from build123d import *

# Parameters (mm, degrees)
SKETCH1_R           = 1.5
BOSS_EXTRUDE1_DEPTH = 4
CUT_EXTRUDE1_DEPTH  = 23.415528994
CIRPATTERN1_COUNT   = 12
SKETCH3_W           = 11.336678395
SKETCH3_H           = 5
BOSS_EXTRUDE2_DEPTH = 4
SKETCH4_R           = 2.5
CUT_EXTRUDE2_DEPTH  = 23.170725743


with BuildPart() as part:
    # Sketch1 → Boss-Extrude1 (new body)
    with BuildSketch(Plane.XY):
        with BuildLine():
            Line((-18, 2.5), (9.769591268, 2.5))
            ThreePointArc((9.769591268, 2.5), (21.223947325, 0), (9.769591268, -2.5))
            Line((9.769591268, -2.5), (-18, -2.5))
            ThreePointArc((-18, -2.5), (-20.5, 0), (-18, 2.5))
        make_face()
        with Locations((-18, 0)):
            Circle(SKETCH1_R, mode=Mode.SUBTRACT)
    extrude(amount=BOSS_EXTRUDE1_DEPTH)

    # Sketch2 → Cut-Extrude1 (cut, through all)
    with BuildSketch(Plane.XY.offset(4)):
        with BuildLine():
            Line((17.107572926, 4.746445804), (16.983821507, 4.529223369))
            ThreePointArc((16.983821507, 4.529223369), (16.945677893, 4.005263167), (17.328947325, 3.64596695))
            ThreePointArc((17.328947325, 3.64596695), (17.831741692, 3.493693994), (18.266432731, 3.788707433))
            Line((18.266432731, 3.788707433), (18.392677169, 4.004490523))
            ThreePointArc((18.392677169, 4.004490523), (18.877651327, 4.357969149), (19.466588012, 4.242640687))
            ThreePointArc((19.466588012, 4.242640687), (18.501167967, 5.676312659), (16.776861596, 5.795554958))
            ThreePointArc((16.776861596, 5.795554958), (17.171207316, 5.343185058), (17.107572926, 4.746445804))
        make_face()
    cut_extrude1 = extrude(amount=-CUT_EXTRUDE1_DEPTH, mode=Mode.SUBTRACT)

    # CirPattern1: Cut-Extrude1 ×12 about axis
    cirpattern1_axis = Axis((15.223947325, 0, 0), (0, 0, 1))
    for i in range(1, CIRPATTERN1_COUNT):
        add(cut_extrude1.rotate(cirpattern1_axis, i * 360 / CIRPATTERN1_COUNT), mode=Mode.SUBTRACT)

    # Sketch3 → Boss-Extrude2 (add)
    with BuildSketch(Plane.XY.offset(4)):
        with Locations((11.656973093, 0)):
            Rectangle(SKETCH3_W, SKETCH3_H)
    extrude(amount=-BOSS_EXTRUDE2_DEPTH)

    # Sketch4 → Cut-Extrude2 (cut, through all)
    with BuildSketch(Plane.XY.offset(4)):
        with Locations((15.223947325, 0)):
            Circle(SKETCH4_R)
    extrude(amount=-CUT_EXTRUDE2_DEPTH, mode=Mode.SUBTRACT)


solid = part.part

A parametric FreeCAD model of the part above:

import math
import FreeCAD as App
import Part
import Sketcher

V = App.Vector

doc = App.newDocument("Part")
body = doc.addObject("PartDesign::Body", "Body")
body.AllowCompound = True

# Sketch on XY plane
sketch1 = body.newObject("Sketcher::SketchObject", "Sketch")
sketch1.AttachmentSupport = (doc.getObject("XY_Plane"), [""])
sketch1.MapMode = "FlatFace"
sketch1.addGeometry([
    Part.LineSegment(V(9.8, 2.5, 0), V(-18, 2.5, 0)),  # 0
    Part.ArcOfCircle(Part.Circle(V(-18, 0, 0), V(0, 0, 1), 2.5), math.radians(90), math.radians(270)),  # 1
    Part.LineSegment(V(-18, -2.5, 0), V(9.8, -2.5, 0)),  # 2
    Part.ArcOfCircle(Part.Circle(V(15.2, 0, 0), V(0, 0, 1), 6), math.radians(-155), math.radians(155)),  # 3
    Part.Circle(V(-18, 0, 0), V(0, 0, 1), 1.5),  # 4
], False)
sketch1.addConstraint([
    Sketcher.Constraint("Tangent", 0, 2, 1, 1),
    Sketcher.Constraint("Tangent", 1, 2, 2, 1),
    Sketcher.Constraint("Coincident", 2, 2, 3, 1),
    Sketcher.Constraint("Coincident", 3, 2, 0, 1),
    Sketcher.Constraint("Horizontal", 0),
    Sketcher.Constraint("Horizontal", 2),
    Sketcher.Constraint("Coincident", 4, 3, 1, 3),
    Sketcher.Constraint("Symmetric", 2, 2, 3, 2, -1),
    Sketcher.Constraint("Diameter", 4, 3.0),
    Sketcher.Constraint("Radius", 3, 6.0),
    Sketcher.Constraint("Radius", 1, 2.5),
    Sketcher.Constraint("DistanceX", 1, 3, -1, 1, 18.0),
    Sketcher.Constraint("DistanceX", 0, 2, 0, 1, 27.769591),
])
pad1 = body.newObject("PartDesign::Pad", "Pad")
pad1.Profile = sketch1
pad1.Length = 4

# Sketch on XY plane
sketch2 = body.newObject("Sketcher::SketchObject", "Sketch001")
sketch2.AttachmentSupport = (doc.getObject("XY_Plane"), [""])
sketch2.MapMode = "FlatFace"
sketch2.AttachmentOffset = App.Placement(V(0, 0, 4), App.Rotation())
sketch2.addGeometry([
    Part.LineSegment(V(17.11, 4.75, 0), V(16.98, 4.53, 0)),  # 0
    Part.ArcOfCircle(Part.Circle(V(17.51, 4.23, 0), V(0, 0, 1), 0.61), math.radians(150), math.radians(252)),  # 1
    Part.ArcOfCircle(Part.Circle(V(17.74, 4.1, 0), V(0, 0, 1), 0.61), math.radians(-132), math.radians(-30)),  # 2
    Part.LineSegment(V(18.27, 3.79, 0), V(18.39, 4, 0)),  # 3
    Part.ArcOfCircle(Part.Circle(V(19.04, 3.63, 0), V(0, 0, 1), 0.75), math.radians(55), math.radians(150)),  # 4
    Part.ArcOfCircle(Part.Circle(V(17.52, 3.97, 0), V(0, 0, 1), 1.97), math.radians(8), math.radians(112)),  # 5
    Part.ArcOfCircle(Part.Circle(V(16.46, 5.12, 0), V(0, 0, 1), 0.75), math.radians(-30), math.radians(65)),  # 6
], False)
sketch2.addConstraint([
    Sketcher.Constraint("Tangent", 0, 2, 1, 1),
    Sketcher.Constraint("Coincident", 1, 2, 2, 1),
    Sketcher.Constraint("Tangent", 2, 2, 3, 1),
    Sketcher.Constraint("Tangent", 3, 2, 4, 2),
    Sketcher.Constraint("Coincident", 4, 1, 5, 1),
    Sketcher.Constraint("Coincident", 5, 2, 6, 2),
    Sketcher.Constraint("Tangent", 6, 1, 0, 1),
    Sketcher.Constraint("Equal", 1, 2),
    Sketcher.Constraint("Equal", 4, 6),
    Sketcher.Constraint("Equal", 0, 3),
    Sketcher.Constraint("Radius", 1, 0.61),
    Sketcher.Constraint("Radius", 4, 0.75),
    Sketcher.Constraint("Distance", 0, 0.25),
    Sketcher.Constraint("Radius", 5, 1.968313),
    Sketcher.Constraint("DistanceY", -1, 1, 6, 3, 5.1177),
    Sketcher.Constraint("DistanceX", 0, 2, 2, 3, 0.7561),
    Sketcher.Constraint("DistanceY", 2, 3, 6, 1, 0.649702),
    Sketcher.Constraint("DistanceY", -1, 1, 1, 3, 4.22727),
    Sketcher.Constraint("DistanceX", -1, 1, 2, 3, 17.739922),
    Sketcher.Constraint("DistanceX", -1, 1, 5, 3, 17.517012),
    Sketcher.Constraint("DistanceY", -1, 1, 3, 2, 4.004491),
    Sketcher.Constraint("DistanceX", -1, 1, 4, 1, 19.466588),
])
pocket1 = body.newObject("PartDesign::Pocket", "Pocket")
pocket1.Profile = sketch2
pocket1.Type = "ThroughAll"
doc.recompute()

datumline = body.newObject("PartDesign::Line", "DatumLine")
datumline.Placement = App.Placement(V(15.223947, 0, 0), App.Rotation(V(0, 0, 1), V(0, 0, 1)))
polarpattern = body.newObject("PartDesign::PolarPattern", "PolarPattern")
polarpattern.Originals = [pocket1]
polarpattern.Axis = (datumline, [""])
polarpattern.Angle = 360
polarpattern.Occurrences = 12
body.Tip = polarpattern

# Sketch on XY plane
sketch3 = body.newObject("Sketcher::SketchObject", "Sketch002")
sketch3.AttachmentSupport = (doc.getObject("XY_Plane"), [""])
sketch3.MapMode = "FlatFace"
sketch3.AttachmentOffset = App.Placement(V(0, 0, 4), App.Rotation())
sketch3.addGeometry([
    Part.LineSegment(V(6, 2, 0), V(6, -2, 0)),
    Part.LineSegment(V(6, -2, 0), V(17, -2, 0)),
    Part.LineSegment(V(17, -2, 0), V(17, 2, 0)),
    Part.LineSegment(V(17, 2, 0), V(6, 2, 0)),
], False)
sketch3.addConstraint([
    Sketcher.Constraint("Coincident", 0, 2, 1, 1),
    Sketcher.Constraint("Coincident", 1, 2, 2, 1),
    Sketcher.Constraint("Coincident", 2, 2, 3, 1),
    Sketcher.Constraint("Coincident", 3, 2, 0, 1),
    Sketcher.Constraint("Vertical", 0),
    Sketcher.Constraint("Horizontal", 1),
    Sketcher.Constraint("Vertical", 2),
    Sketcher.Constraint("Horizontal", 3),
    Sketcher.Constraint("DistanceY", 0, 2, 0, 1, 5.0),
    Sketcher.Constraint("DistanceY", 0, 2, -1, 1, 2.5),
    Sketcher.Constraint("DistanceX", 1, 1, 1, 2, 11.336678),
    Sketcher.Constraint("DistanceX", -1, 1, 0, 2, 5.988634),
])
pad2 = body.newObject("PartDesign::Pad", "Pad001")
pad2.Profile = sketch3
pad2.Length = 4
pad2.Reversed = True

# Sketch on XY plane
sketch4 = body.newObject("Sketcher::SketchObject", "Sketch003")
sketch4.AttachmentSupport = (doc.getObject("XY_Plane"), [""])
sketch4.MapMode = "FlatFace"
sketch4.AttachmentOffset = App.Placement(V(0, 0, 4), App.Rotation())
sketch4.addGeometry(Part.Circle(V(15.2, 0, 0), V(0, 0, 1), 2.5), False)
sketch4.addConstraint([
    Sketcher.Constraint("PointOnObject", 0, 3, -1),
    Sketcher.Constraint("Diameter", 0, 5.0),
    Sketcher.Constraint("DistanceX", -1, 1, 0, 3, 15.223947),
])
pocket2 = body.newObject("PartDesign::Pocket", "Pocket001")
pocket2.Profile = sketch4
pocket2.Type = "ThroughAll"

doc.recompute()
